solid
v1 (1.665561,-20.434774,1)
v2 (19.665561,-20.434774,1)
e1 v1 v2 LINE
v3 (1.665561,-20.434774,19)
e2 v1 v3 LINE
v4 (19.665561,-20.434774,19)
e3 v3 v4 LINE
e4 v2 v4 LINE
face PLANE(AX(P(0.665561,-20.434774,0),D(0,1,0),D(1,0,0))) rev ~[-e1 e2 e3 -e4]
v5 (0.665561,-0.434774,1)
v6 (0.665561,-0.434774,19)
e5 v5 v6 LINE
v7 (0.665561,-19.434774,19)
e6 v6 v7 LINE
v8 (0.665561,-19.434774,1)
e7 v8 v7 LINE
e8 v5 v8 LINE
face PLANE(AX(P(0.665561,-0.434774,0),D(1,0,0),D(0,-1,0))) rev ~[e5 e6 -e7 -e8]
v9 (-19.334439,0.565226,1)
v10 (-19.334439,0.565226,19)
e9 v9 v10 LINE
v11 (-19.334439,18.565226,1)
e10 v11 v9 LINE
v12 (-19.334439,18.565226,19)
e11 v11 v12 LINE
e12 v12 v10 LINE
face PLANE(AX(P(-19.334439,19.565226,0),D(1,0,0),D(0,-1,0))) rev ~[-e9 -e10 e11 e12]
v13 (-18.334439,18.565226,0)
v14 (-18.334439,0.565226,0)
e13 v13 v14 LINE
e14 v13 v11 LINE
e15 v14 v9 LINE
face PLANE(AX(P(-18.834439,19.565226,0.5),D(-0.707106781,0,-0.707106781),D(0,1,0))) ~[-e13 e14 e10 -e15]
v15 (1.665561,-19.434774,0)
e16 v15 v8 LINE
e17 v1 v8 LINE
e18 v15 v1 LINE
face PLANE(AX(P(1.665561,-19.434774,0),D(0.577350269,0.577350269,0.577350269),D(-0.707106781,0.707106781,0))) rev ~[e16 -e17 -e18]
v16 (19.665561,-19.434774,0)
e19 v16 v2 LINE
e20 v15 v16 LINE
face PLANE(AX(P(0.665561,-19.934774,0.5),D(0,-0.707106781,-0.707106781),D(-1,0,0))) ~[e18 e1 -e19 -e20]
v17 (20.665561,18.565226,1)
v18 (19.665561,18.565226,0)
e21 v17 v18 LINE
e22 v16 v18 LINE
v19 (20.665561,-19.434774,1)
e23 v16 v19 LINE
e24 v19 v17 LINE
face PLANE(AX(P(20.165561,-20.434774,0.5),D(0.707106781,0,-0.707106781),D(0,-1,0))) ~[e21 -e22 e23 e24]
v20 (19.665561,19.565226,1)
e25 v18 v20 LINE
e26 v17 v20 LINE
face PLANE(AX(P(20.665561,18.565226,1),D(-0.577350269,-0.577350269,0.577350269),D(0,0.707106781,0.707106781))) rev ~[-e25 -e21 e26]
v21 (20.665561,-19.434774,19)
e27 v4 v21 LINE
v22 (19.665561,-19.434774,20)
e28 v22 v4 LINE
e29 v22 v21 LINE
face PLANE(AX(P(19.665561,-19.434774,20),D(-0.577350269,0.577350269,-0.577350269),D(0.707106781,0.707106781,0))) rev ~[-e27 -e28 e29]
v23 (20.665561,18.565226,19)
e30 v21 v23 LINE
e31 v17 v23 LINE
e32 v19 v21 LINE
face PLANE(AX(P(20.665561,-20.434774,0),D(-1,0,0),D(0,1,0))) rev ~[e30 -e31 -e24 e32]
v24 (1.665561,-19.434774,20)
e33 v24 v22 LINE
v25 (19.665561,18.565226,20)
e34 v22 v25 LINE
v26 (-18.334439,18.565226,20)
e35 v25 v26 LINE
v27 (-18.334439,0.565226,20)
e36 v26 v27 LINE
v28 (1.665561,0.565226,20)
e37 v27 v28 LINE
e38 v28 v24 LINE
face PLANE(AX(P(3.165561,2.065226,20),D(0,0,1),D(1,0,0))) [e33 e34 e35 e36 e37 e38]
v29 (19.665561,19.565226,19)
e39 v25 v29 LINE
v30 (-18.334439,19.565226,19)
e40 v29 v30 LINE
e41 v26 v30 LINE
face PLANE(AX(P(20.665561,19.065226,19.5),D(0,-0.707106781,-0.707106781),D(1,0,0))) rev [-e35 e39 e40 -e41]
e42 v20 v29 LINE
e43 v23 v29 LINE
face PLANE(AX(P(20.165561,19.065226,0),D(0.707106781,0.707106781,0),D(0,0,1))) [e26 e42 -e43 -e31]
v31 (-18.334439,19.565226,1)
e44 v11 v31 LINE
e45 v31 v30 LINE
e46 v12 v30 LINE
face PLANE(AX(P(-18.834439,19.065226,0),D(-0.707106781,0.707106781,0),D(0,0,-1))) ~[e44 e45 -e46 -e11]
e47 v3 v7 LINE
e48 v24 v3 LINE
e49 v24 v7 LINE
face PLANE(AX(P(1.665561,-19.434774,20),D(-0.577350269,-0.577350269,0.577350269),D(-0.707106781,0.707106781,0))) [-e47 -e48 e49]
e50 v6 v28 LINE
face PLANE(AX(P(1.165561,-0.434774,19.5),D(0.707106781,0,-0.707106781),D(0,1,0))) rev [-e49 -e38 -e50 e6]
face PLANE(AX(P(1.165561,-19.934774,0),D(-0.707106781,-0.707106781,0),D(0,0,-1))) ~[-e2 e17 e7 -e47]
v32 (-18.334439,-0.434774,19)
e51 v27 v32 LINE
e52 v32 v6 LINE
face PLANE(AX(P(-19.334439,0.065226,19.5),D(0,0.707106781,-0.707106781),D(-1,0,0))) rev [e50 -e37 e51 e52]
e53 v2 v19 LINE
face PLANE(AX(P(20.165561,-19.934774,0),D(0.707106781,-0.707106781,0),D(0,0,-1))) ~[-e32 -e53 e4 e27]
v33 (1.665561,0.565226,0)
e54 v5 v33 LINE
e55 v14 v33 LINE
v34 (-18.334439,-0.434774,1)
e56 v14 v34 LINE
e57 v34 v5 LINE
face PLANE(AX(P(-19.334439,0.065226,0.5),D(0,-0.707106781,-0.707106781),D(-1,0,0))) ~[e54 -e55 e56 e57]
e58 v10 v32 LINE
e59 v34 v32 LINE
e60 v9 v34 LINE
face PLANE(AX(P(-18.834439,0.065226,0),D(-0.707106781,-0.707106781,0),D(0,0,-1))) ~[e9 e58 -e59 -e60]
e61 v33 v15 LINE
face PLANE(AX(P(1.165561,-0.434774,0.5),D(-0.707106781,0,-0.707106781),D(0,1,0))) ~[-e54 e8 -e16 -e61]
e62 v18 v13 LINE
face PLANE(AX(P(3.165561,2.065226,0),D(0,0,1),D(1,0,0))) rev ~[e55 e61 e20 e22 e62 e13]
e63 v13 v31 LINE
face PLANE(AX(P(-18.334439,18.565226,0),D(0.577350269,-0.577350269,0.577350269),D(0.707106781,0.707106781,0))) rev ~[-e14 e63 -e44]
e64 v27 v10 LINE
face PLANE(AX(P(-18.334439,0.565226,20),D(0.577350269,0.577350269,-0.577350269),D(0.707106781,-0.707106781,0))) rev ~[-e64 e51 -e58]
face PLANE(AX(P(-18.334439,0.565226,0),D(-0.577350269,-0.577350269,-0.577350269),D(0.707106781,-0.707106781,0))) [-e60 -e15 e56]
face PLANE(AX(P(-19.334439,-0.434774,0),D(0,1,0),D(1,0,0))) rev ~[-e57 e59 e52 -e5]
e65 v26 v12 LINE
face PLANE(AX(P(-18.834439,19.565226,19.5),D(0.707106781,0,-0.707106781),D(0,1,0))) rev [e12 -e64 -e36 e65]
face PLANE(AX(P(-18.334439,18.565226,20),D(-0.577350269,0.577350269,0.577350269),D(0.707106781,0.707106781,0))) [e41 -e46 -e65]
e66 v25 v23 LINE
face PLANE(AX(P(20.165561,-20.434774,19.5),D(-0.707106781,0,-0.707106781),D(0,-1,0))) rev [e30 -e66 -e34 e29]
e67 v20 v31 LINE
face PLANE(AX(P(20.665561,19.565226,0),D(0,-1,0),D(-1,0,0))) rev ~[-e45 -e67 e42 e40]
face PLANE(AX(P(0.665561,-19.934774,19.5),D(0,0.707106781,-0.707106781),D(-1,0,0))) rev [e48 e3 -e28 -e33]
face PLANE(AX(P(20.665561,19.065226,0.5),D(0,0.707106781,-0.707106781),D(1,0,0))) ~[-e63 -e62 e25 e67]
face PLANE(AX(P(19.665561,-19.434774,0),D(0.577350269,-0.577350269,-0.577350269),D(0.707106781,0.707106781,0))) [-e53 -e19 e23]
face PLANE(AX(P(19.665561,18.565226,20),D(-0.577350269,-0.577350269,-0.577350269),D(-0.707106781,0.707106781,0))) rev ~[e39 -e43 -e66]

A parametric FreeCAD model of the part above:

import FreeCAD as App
import Part
import Sketcher
from FreeCAD import Vector


def edges_at(feature, points):
    """Names of the edges that pass closest to the given points."""
    edges = feature.Shape.Edges
    near = lambda p: min(range(len(edges)), key=lambda i: edges[i].distToShape(Part.Vertex(*p))[0])
    return sorted({f"Edge{near(p) + 1}" for p in points})


def add_polygon(sketch, points):
    """Adds a closed chain of lines whose ends are joined by coincident constraints."""
    first, n = sketch.GeometryCount, len(points)
    for a, b in zip(points, points[1:] + points[:1]):
        sketch.addGeometry(Part.LineSegment(App.Vector(*a, 0), App.Vector(*b, 0)), False)
    for i in range(n):
        sketch.addConstraint(Sketcher.Constraint("Coincident", first + i, 2, first + (i + 1) % n, 1))

doc = App.newDocument("Part")
body = doc.addObject("PartDesign::Body", "Body")

sketch1 = doc.addObject("Sketcher::SketchObject", "Sketch")
body.addObject(sketch1)
sketch1.AttachmentSupport = (doc.XY_Plane, [""])
sketch1.MapMode = "FlatFace"
add_polygon(sketch1, [(20.665561, 19.565226), (-19.334439, 19.565226), (-19.334439, -0.434774), (0.665561, -0.434774), (0.665561, -20.434774), (20.665561, -20.434774)])
sketch1.addConstraint(Sketcher.Constraint("Horizontal", 0))
sketch1.addConstraint(Sketcher.Constraint("Vertical", 1))
sketch1.addConstraint(Sketcher.Constraint("Horizontal", 2))
sketch1.addConstraint(Sketcher.Constraint("Vertical", 3))
sketch1.addConstraint(Sketcher.Constraint("Horizontal", 4))
sketch1.addConstraint(Sketcher.Constraint("Vertical", 5))
sketch1.addConstraint(Sketcher.Constraint("Equal", 2, 4))
sketch1.addConstraint(Sketcher.Constraint("Equal", 4, 1))
sketch1.addConstraint(Sketcher.Constraint("Equal", 1, 3))
sketch1.addConstraint(Sketcher.Constraint("DistanceX", 0, 2, 0, 1, 40.0))
sketch1.addConstraint(Sketcher.Constraint("DistanceX", 0, 2, -1, 1, 19.334439))
sketch1.addConstraint(Sketcher.Constraint("DistanceY", -1, 1, 0, 2, 19.565226))
pad1 = doc.addObject("PartDesign::Pad", "Pad")
body.addObject(pad1)
pad1.Profile = sketch1
pad1.Length = 20
doc.recompute()

chamfer = doc.addObject("PartDesign::Chamfer", "Chamfer")
body.addObject(chamfer)
chamfer.Base = (pad1, edges_at(pad1, [
    (0.666, -20.435, 10),
    (20.666, -20.435, 10),
    (10.666, -20.435, 0),
    (10.666, -20.435, 20),
    (-19.334, 19.565, 10),
    (-19.334, -0.435, 10),
    (-19.334, 9.565, 0),
    (-19.334, 9.565, 20),
    (0.666, 19.565, 0),
    (-9.334, -0.435, 0),
    (0.666, -10.435, 0),
    (20.666, -0.435, 0),
    (20.666, 19.565, 10),
    (20.666, -0.435, 20),
    (0.666, 19.565, 20),
    (-9.334, -0.435, 20),
    (0.666, -10.435, 20),
]))
chamfer.Size = 1

doc.recompute()
